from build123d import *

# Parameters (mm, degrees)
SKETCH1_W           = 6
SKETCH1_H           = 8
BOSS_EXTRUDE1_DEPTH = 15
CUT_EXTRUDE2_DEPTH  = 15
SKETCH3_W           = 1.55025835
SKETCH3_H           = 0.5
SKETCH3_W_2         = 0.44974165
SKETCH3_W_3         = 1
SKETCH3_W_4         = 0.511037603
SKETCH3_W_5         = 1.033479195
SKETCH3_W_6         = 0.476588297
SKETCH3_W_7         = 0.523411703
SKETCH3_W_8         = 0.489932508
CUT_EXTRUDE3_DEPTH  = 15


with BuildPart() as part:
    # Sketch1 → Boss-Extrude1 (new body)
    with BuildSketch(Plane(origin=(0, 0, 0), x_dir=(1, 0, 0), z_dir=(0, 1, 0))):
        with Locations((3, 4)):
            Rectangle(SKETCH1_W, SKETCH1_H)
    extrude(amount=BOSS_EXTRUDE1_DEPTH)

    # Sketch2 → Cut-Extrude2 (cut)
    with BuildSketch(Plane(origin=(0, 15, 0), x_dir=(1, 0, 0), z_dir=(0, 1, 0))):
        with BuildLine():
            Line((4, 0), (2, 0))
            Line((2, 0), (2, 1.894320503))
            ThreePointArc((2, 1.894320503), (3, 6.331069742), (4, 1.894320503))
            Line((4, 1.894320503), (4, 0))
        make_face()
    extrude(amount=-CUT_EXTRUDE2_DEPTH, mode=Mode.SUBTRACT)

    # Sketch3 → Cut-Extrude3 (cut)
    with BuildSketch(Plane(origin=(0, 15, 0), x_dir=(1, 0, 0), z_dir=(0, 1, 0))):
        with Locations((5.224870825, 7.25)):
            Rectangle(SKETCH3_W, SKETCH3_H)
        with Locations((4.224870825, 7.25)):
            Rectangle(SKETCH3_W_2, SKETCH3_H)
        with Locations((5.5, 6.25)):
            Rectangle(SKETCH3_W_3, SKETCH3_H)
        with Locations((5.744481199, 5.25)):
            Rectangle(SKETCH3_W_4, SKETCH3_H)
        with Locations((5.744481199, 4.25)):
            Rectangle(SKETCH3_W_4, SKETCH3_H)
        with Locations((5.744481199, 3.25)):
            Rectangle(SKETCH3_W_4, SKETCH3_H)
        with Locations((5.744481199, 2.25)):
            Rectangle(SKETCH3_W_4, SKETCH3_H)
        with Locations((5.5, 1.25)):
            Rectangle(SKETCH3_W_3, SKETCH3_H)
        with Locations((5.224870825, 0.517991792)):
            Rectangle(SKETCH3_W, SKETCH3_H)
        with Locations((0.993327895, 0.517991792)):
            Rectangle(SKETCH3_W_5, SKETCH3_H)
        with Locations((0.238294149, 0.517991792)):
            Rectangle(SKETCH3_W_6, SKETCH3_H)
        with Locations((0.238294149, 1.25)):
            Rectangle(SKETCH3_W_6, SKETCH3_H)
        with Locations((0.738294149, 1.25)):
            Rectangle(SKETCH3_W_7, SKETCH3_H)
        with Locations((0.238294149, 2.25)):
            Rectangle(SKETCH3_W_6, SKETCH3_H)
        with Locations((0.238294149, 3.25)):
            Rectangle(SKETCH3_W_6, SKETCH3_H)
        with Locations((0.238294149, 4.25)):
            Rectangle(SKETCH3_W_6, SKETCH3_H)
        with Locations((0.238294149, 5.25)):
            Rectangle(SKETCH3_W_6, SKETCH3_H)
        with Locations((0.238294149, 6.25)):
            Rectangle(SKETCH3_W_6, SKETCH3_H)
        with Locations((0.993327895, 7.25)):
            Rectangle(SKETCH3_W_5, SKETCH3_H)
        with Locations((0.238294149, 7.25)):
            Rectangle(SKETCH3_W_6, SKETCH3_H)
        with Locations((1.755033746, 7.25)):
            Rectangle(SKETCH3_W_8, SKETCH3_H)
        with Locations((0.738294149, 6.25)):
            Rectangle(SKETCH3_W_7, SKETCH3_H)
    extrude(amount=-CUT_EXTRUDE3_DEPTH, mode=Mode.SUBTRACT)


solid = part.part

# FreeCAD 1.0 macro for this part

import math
import FreeCAD as App
import Part
import Sketcher
from FreeCAD import Vector


def add_polygon(sketch, points):
    """Adds a closed chain of lines whose ends are joined by coincident constraints."""
    first, n = sketch.GeometryCount, len(points)
    for a, b in zip(points, points[1:] + points[:1]):
        sketch.addGeometry(Part.LineSegment(App.Vector(*a, 0), App.Vector(*b, 0)), False)
    for i in range(n):
        sketch.addConstraint(Sketcher.Constraint("Coincident", first + i, 2, first + (i + 1) % n, 1))

doc = App.newDocument("Part")
params = doc.addObject("Spreadsheet::Sheet", "Params")
for row, (alias, value) in enumerate([
    ("sketch1_width", "6 mm"),
    ("sketch1_height", "8 mm"),
    ("pad1_length", "15 mm"),
    ("sketch2_width", "2 mm"),
    ("pocket1_length", "15 mm"),
    ("sketch3_width", "2 mm"),
    ("sketch3_width2", "1 mm"),
    ("sketch3_height", "0.5 mm"),
    ("pocket2_length", "15 mm"),
], start=1):
    params.set(f"A{row}", alias)
    params.set(f"B{row}", "=" + value)
    params.setAlias(f"B{row}", alias)

body = doc.addObject("PartDesign::Body", "Body")

sketch1 = body.newObject("Sketcher::SketchObject", "Sketch")
sketch1.AttachmentSupport = (doc.getObject("XZ_Plane"), [""])
sketch1.MapMode = "FlatFace"
add_polygon(sketch1, [(0, -8), (0, 0), (6, 0), (6, -8)])
sketch1.addConstraint(Sketcher.Constraint("Vertical", 0))
sketch1.addConstraint(Sketcher.Constraint("Horizontal", 1))
sketch1.addConstraint(Sketcher.Constraint("Vertical", 2))
sketch1.addConstraint(Sketcher.Constraint("Horizontal", 3))
sketch1.addConstraint(Sketcher.Constraint("Coincident", 0, 2, -1, 1))
sketch1.addConstraint(Sketcher.Constraint("DistanceX", 1, 1, 1, 2, 6.0))
sketch1.addConstraint(Sketcher.Constraint("DistanceY", 0, 1, 0, 2, 8.0))
sketch1.setExpression("Constraints[9]", "Params.sketch1_width")
sketch1.setExpression("Constraints[10]", "Params.sketch1_height")
pad1 = body.newObject("PartDesign::Pad", "Pad")
pad1.Profile = sketch1
pad1.setExpression("Length", "Params.pad1_length")
pad1.Reversed = True

sketch2 = body.newObject("Sketcher::SketchObject", "Sketch001")
sketch2.AttachmentSupport = (doc.getObject("XZ_Plane"), [""])
sketch2.MapMode = "FlatFace"
sketch2.AttachmentOffset = App.Placement(Vector(0, 0, -15), App.Rotation())
sketch2.addGeometry(Part.LineSegment(Vector(2, 0, 0), Vector(4, 0, 0)), False)
sketch2.addGeometry(Part.LineSegment(Vector(4, 0, 0), Vector(4, -1.894321, 0)), False)
sketch2.addGeometry(Part.ArcOfCircle(Part.Circle(Vector(3, -4, 0), Vector(0, 0, 1), 2.33107), math.radians(115.403327), math.radians(424.596673)), False)
sketch2.addGeometry(Part.LineSegment(Vector(2, -1.894321, 0), Vector(2, 0, 0)), False)
sketch2.addConstraint(Sketcher.Constraint("Coincident", 0, 2, 1, 1))
sketch2.addConstraint(Sketcher.Constraint("Coincident", 1, 2, 2, 2))
sketch2.addConstraint(Sketcher.Constraint("Coincident", 2, 1, 3, 1))
sketch2.addConstraint(Sketcher.Constraint("Coincident", 3, 2, 0, 1))
sketch2.addConstraint(Sketcher.Constraint("Horizontal", 0))
sketch2.addConstraint(Sketcher.Constraint("Vertical", 1))
sketch2.addConstraint(Sketcher.Constraint("Vertical", 3))
sketch2.addConstraint(Sketcher.Constraint("PointOnObject", 0, 2, -1))
sketch2.addConstraint(Sketcher.Constraint("Horizontal", 1, 2, 2, 1))
sketch2.addConstraint(Sketcher.Constraint("DistanceX", 0, 1, 0, 2, 2.0))
sketch2.addConstraint(Sketcher.Constraint("DistanceX", -1, 1, 2, 3, 3.0))
sketch2.addConstraint(Sketcher.Constraint("DistanceY", 2, 3, -1, 1, 4.0))
sketch2.addConstraint(Sketcher.Constraint("Radius", 2, 2.33107))
sketch2.setExpression("Constraints[9]", "Params.sketch2_width")
pocket1 = body.newObject("PartDesign::Pocket", "Pocket")
pocket1.Profile = sketch2
pocket1.setExpression("Length", "Params.pocket1_length")
pocket1.Reversed = True

sketch3 = body.newObject("Sketcher::SketchObject", "Sketch002")
sketch3.AttachmentSupport = (doc.getObject("XZ_Plane"), [""])
sketch3.MapMode = "FlatFace"
sketch3.AttachmentOffset = App.Placement(Vector(0, 0, -15), App.Rotation())
add_polygon(sketch3, [(6, -7), (6, -7.5), (4, -7.5), (4, -7)])
add_polygon(sketch3, [(5, -6.5), (5, -6), (6, -6), (6, -6.5)])
add_polygon(sketch3, [(5.488962, -5.5), (5.488962, -5), (6, -5), (6, -5.5)])
add_polygon(sketch3, [(5.488962, -4.5), (5.488962, -4), (6, -4), (6, -4.5)])
add_polygon(sketch3, [(5.488962, -3.5), (5.488962, -3), (6, -3), (6, -3.5)])
add_polygon(sketch3, [(5.488962, -2.5), (5.488962, -2), (6, -2), (6, -2.5)])
add_polygon(sketch3, [(5, -1.5), (5, -1), (6, -1), (6, -1.5)])
add_polygon(sketch3, [(4.449742, -0.767992), (4.449742, -0.267992), (6, -0.267992), (6, -0.767992)])
add_polygon(sketch3, [(1.510067, -0.267992), (1.510067, -0.767992), (0, -0.767992), (0, -0.267992)])
add_polygon(sketch3, [(0, -1.5), (0, -1), (1, -1), (1, -1.5)])
add_polygon(sketch3, [(0, -2.5), (0, -2), (0.476588, -2), (0.476588, -2.5)])
add_polygon(sketch3, [(0, -3.5), (0, -3), (0.476588, -3), (0.476588, -3.5)])
add_polygon(sketch3, [(0, -4.5), (0, -4), (0.476588, -4), (0.476588, -4.5)])
add_polygon(sketch3, [(0, -5.5), (0, -5), (0.476588, -5), (0.476588, -5.5)])
add_polygon(sketch3, [(0, -6.5), (0, -6), (1, -6), (1, -6.5)])
add_polygon(sketch3, [(0, -7.5), (0, -7), (2, -7), (2, -7.5)])
sketch3.addConstraint(Sketcher.Constraint("Vertical", 0))
sketch3.addConstraint(Sketcher.Constraint("Horizontal", 1))
sketch3.addConstraint(Sketcher.Constraint("Vertical", 2))
sketch3.addConstraint(Sketcher.Constraint("Horizontal", 3))
sketch3.addConstraint(Sketcher.Constraint("Vertical", 4))
sketch3.addConstraint(Sketcher.Constraint("Horizontal", 5))
sketch3.addConstraint(Sketcher.Constraint("Vertical", 6))
sketch3.addConstraint(Sketcher.Constraint("Horizontal", 7))
sketch3.addConstraint(Sketcher.Constraint("Vertical", 8))
sketch3.addConstraint(Sketcher.Constraint("Horizontal", 9))
sketch3.addConstraint(Sketcher.Constraint("Vertical", 10))
sketch3.addConstraint(Sketcher.Constraint("Horizontal", 11))
sketch3.addConstraint(Sketcher.Constraint("Vertical", 12))
sketch3.addConstraint(Sketcher.Constraint("Horizontal", 13))
sketch3.addConstraint(Sketcher.Constraint("Vertical", 14))
sketch3.addConstraint(Sketcher.Constraint("Horizontal", 15))
sketch3.addConstraint(Sketcher.Constraint("Vertical", 16))
sketch3.addConstraint(Sketcher.Constraint("Horizontal", 17))
sketch3.addConstraint(Sketcher.Constraint("Vertical", 18))
sketch3.addConstraint(Sketcher.Constraint("Horizontal", 19))
sketch3.addConstraint(Sketcher.Constraint("Vertical", 20))
sketch3.addConstraint(Sketcher.Constraint("Horizontal", 21))
sketch3.addConstraint(Sketcher.Constraint("Vertical", 22))
sketch3.addConstraint(Sketcher.Constraint("Horizontal", 23))
sketch3.addConstraint(Sketcher.Constraint("Vertical", 24))
sketch3.addConstraint(Sketcher.Constraint("Horizontal", 25))
sketch3.addConstraint(Sketcher.Constraint("Vertical", 26))
sketch3.addConstraint(Sketcher.Constraint("Horizontal", 27))
sketch3.addConstraint(Sketcher.Constraint("Vertical", 28))
sketch3.addConstraint(Sketcher.Constraint("Horizontal", 29))
sketch3.addConstraint(Sketcher.Constraint("Vertical", 30))
sketch3.addConstraint(Sketcher.Constraint("Horizontal", 31))
sketch3.addConstraint(Sketcher.Constraint("Vertical", 32))
sketch3.addConstraint(Sketcher.Constraint("Horizontal", 33))
sketch3.addConstraint(Sketcher.Constraint("Vertical", 34))
sketch3.addConstraint(Sketcher.Constraint("Horizontal", 35))
sketch3.addConstraint(Sketcher.Constraint("Vertical", 36))
sketch3.addConstraint(Sketcher.Constraint("Horizontal", 37))
sketch3.addConstraint(Sketcher.Constraint("Vertical", 38))
sketch3.addConstraint(Sketcher.Constraint("Horizontal", 39))
sketch3.addConstraint(Sketcher.Constraint("Vertical", 40))
sketch3.addConstraint(Sketcher.Constraint("Horizontal", 41))
sketch3.addConstraint(Sketcher.Constraint("Vertical", 42))
sketch3.addConstraint(Sketcher.Constraint("Horizontal", 43))
sketch3.addConstraint(Sketcher.Constraint("Vertical", 44))
sketch3.addConstraint(Sketcher.Constraint("Horizontal", 45))
sketch3.addConstraint(Sketcher.Constraint("Vertical", 46))
sketch3.addConstraint(Sketcher.Constraint("Horizontal", 47))
sketch3.addConstraint(Sketcher.Constraint("Vertical", 48))
sketch3.addConstraint(Sketcher.Constraint("Horizontal", 49))
sketch3.addConstraint(Sketcher.Constraint("Vertical", 50))
sketch3.addConstraint(Sketcher.Constraint("Horizontal", 51))
sketch3.addConstraint(Sketcher.Constraint("Vertical", 52))
sketch3.addConstraint(Sketcher.Constraint("Horizontal", 53))
sketch3.addConstraint(Sketcher.Constraint("Vertical", 54))
sketch3.addConstraint(Sketcher.Constraint("Horizontal", 55))
sketch3.addConstraint(Sketcher.Constraint("Vertical", 56))
sketch3.addConstraint(Sketcher.Constraint("Horizontal", 57))
sketch3.addConstraint(Sketcher.Constraint("Vertical", 58))
sketch3.addConstraint(Sketcher.Constraint("Horizontal", 59))
sketch3.addConstraint(Sketcher.Constraint("Vertical", 60))
sketch3.addConstraint(Sketcher.Constraint("Horizontal", 61))
sketch3.addConstraint(Sketcher.Constraint("Vertical", 62))
sketch3.addConstraint(Sketcher.Constraint("Horizontal", 63))
sketch3.addConstraint(Sketcher.Constraint("PointOnObject", 33, 2, -2))
sketch3.addConstraint(Sketcher.Constraint("PointOnObject", 36, 2, -2))
sketch3.addConstraint(Sketcher.Constraint("PointOnObject", 40, 2, -2))
sketch3.addConstraint(Sketcher.Constraint("PointOnObject", 44, 2, -2))
sketch3.addConstraint(Sketcher.Constraint("PointOnObject", 48, 2, -2))
sketch3.addConstraint(Sketcher.Constraint("PointOnObject", 52, 2, -2))
sketch3.addConstraint(Sketcher.Constraint("PointOnObject", 56, 2, -2))
sketch3.addConstraint(Sketcher.Constraint("PointOnObject", 60, 2, -2))
sketch3.addConstraint(Sketcher.Constraint("Horizontal", 31, 2, 32, 2))
sketch3.addConstraint(Sketcher.Constraint("Horizontal", 29, 2, 34, 2))
sketch3.addConstraint(Sketcher.Constraint("Horizontal", 25, 2, 36, 2))
sketch3.addConstraint(Sketcher.Constraint("Horizontal", 27, 2, 38, 2))
sketch3.addConstraint(Sketcher.Constraint("Horizontal", 21, 2, 40, 2))
sketch3.addConstraint(Sketcher.Constraint("Horizontal", 23, 2, 42, 2))
sketch3.addConstraint(Sketcher.Constraint("Horizontal", 17, 2, 44, 2))
sketch3.addConstraint(Sketcher.Constraint("Horizontal", 19, 2, 46, 2))
sketch3.addConstraint(Sketcher.Constraint("Horizontal", 13, 2, 48, 2))
sketch3.addConstraint(Sketcher.Constraint("Horizontal", 15, 2, 50, 2))
sketch3.addConstraint(Sketcher.Constraint("Horizontal", 9, 2, 52, 2))
sketch3.addConstraint(Sketcher.Constraint("Horizontal", 11, 2, 54, 2))
sketch3.addConstraint(Sketcher.Constraint("Horizontal", 5, 2, 56, 2))
sketch3.addConstraint(Sketcher.Constraint("Horizontal", 7, 2, 58, 2))
sketch3.addConstraint(Sketcher.Constraint("Horizontal", 3, 2, 60, 2))
sketch3.addConstraint(Sketcher.Constraint("Horizontal", 1, 2, 62, 2))
sketch3.addConstraint(Sketcher.Constraint("Vertical", 3, 2, 5, 2))
sketch3.addConstraint(Sketcher.Constraint("Vertical", 6, 2, 9, 2))
sketch3.addConstraint(Sketcher.Constraint("Vertical", 11, 2, 12, 2))
sketch3.addConstraint(Sketcher.Constraint("Vertical", 10, 2, 13, 2))
sketch3.addConstraint(Sketcher.Constraint("Vertical", 15, 2, 16, 2))
sketch3.addConstraint(Sketcher.Constraint("Vertical", 14, 2, 17, 2))
sketch3.addConstraint(Sketcher.Constraint("Vertical", 19, 2, 20, 2))
sketch3.addConstraint(Sketcher.Constraint("Vertical", 18, 2, 21, 2))
sketch3.addConstraint(Sketcher.Constraint("Vertical", 7, 2, 24, 2))
sketch3.addConstraint(Sketcher.Constraint("Vertical", 22, 2, 25, 2))
sketch3.addConstraint(Sketcher.Constraint("Vertical", 26, 2, 29, 2))
sketch3.addConstraint(Sketcher.Constraint("Vertical", 42, 2, 45, 2))
sketch3.addConstraint(Sketcher.Constraint("Vertical", 46, 2, 49, 2))
sketch3.addConstraint(Sketcher.Constraint("Vertical", 50, 2, 53, 2))
sketch3.addConstraint(Sketcher.Constraint("Vertical", 38, 2, 57, 2))
sketch3.addConstraint(Sketcher.Constraint("Equal", 27, 37))
sketch3.addConstraint(Sketcher.Constraint("Equal", 3, 61))
sketch3.addConstraint(Sketcher.Constraint("Equal", 2, 4))
sketch3.addConstraint(Sketcher.Constraint("Equal", 6, 8))
sketch3.addConstraint(Sketcher.Constraint("Equal", 10, 12))
sketch3.addConstraint(Sketcher.Constraint("Equal", 14, 16))
sketch3.addConstraint(Sketcher.Constraint("Equal", 18, 20))
sketch3.addConstraint(Sketcher.Constraint("Equal", 22, 24))
sketch3.addConstraint(Sketcher.Constraint("Equal", 26, 28))
sketch3.addConstraint(Sketcher.Constraint("DistanceX", 1, 2, 1, 1, 2.0))
sketch3.addConstraint(Sketcher.Constraint("DistanceX", 5, 1, 5, 2, 1.0))
sketch3.addConstraint(Sketcher.Constraint("DistanceY", 0, 2, 0, 1, 0.5))
sketch3.addConstraint(Sketcher.Constraint("DistanceX", -1, 1, 0, 2, 6.0))
sketch3.addConstraint(Sketcher.Constraint("DistanceY", 2, 2, -1, 1, 7.0))
sketch3.addConstraint(Sketcher.Constraint("DistanceY", 4, 2, -1, 1, 6.0))
sketch3.addConstraint(Sketcher.Constraint("DistanceY", 8, 2, -1, 1, 5.0))
sketch3.addConstraint(Sketcher.Constraint("DistanceY", 12, 2, -1, 1, 4.0))
sketch3.addConstraint(Sketcher.Constraint("DistanceY", 16, 2, -1, 1, 3.0))
sketch3.addConstraint(Sketcher.Constraint("DistanceY", 20, 2, -1, 1, 2.0))
sketch3.addConstraint(Sketcher.Constraint("DistanceY", 24, 2, -1, 1, 1.0))
sketch3.addConstraint(Sketcher.Constraint("DistanceX", 29, 1, 29, 2, 1.550258))
sketch3.addConstraint(Sketcher.Constraint("DistanceX", 41, 1, 41, 2, 0.476588))
sketch3.addConstraint(Sketcher.Constraint("DistanceX", 9, 1, 9, 2, 0.511038))
sketch3.addConstraint(Sketcher.Constraint("DistanceX", 33, 2, 33, 1, 1.510067))
sketch3.addConstraint(Sketcher.Constraint("DistanceY", 28, 2, -1, 1, 0.267992))
sketch3.setExpression("Constraints[176]", "Params.sketch3_width")
sketch3.setExpression("Constraints[177]", "Params.sketch3_width2")
sketch3.setExpression("Constraints[178]", "Params.sketch3_height")
pocket2 = body.newObject("PartDesign::Pocket", "Pocket001")
pocket2.Profile = sketch3
pocket2.setExpression("Length", "Params.pocket2_length")
pocket2.Reversed = True

doc.recompute()
